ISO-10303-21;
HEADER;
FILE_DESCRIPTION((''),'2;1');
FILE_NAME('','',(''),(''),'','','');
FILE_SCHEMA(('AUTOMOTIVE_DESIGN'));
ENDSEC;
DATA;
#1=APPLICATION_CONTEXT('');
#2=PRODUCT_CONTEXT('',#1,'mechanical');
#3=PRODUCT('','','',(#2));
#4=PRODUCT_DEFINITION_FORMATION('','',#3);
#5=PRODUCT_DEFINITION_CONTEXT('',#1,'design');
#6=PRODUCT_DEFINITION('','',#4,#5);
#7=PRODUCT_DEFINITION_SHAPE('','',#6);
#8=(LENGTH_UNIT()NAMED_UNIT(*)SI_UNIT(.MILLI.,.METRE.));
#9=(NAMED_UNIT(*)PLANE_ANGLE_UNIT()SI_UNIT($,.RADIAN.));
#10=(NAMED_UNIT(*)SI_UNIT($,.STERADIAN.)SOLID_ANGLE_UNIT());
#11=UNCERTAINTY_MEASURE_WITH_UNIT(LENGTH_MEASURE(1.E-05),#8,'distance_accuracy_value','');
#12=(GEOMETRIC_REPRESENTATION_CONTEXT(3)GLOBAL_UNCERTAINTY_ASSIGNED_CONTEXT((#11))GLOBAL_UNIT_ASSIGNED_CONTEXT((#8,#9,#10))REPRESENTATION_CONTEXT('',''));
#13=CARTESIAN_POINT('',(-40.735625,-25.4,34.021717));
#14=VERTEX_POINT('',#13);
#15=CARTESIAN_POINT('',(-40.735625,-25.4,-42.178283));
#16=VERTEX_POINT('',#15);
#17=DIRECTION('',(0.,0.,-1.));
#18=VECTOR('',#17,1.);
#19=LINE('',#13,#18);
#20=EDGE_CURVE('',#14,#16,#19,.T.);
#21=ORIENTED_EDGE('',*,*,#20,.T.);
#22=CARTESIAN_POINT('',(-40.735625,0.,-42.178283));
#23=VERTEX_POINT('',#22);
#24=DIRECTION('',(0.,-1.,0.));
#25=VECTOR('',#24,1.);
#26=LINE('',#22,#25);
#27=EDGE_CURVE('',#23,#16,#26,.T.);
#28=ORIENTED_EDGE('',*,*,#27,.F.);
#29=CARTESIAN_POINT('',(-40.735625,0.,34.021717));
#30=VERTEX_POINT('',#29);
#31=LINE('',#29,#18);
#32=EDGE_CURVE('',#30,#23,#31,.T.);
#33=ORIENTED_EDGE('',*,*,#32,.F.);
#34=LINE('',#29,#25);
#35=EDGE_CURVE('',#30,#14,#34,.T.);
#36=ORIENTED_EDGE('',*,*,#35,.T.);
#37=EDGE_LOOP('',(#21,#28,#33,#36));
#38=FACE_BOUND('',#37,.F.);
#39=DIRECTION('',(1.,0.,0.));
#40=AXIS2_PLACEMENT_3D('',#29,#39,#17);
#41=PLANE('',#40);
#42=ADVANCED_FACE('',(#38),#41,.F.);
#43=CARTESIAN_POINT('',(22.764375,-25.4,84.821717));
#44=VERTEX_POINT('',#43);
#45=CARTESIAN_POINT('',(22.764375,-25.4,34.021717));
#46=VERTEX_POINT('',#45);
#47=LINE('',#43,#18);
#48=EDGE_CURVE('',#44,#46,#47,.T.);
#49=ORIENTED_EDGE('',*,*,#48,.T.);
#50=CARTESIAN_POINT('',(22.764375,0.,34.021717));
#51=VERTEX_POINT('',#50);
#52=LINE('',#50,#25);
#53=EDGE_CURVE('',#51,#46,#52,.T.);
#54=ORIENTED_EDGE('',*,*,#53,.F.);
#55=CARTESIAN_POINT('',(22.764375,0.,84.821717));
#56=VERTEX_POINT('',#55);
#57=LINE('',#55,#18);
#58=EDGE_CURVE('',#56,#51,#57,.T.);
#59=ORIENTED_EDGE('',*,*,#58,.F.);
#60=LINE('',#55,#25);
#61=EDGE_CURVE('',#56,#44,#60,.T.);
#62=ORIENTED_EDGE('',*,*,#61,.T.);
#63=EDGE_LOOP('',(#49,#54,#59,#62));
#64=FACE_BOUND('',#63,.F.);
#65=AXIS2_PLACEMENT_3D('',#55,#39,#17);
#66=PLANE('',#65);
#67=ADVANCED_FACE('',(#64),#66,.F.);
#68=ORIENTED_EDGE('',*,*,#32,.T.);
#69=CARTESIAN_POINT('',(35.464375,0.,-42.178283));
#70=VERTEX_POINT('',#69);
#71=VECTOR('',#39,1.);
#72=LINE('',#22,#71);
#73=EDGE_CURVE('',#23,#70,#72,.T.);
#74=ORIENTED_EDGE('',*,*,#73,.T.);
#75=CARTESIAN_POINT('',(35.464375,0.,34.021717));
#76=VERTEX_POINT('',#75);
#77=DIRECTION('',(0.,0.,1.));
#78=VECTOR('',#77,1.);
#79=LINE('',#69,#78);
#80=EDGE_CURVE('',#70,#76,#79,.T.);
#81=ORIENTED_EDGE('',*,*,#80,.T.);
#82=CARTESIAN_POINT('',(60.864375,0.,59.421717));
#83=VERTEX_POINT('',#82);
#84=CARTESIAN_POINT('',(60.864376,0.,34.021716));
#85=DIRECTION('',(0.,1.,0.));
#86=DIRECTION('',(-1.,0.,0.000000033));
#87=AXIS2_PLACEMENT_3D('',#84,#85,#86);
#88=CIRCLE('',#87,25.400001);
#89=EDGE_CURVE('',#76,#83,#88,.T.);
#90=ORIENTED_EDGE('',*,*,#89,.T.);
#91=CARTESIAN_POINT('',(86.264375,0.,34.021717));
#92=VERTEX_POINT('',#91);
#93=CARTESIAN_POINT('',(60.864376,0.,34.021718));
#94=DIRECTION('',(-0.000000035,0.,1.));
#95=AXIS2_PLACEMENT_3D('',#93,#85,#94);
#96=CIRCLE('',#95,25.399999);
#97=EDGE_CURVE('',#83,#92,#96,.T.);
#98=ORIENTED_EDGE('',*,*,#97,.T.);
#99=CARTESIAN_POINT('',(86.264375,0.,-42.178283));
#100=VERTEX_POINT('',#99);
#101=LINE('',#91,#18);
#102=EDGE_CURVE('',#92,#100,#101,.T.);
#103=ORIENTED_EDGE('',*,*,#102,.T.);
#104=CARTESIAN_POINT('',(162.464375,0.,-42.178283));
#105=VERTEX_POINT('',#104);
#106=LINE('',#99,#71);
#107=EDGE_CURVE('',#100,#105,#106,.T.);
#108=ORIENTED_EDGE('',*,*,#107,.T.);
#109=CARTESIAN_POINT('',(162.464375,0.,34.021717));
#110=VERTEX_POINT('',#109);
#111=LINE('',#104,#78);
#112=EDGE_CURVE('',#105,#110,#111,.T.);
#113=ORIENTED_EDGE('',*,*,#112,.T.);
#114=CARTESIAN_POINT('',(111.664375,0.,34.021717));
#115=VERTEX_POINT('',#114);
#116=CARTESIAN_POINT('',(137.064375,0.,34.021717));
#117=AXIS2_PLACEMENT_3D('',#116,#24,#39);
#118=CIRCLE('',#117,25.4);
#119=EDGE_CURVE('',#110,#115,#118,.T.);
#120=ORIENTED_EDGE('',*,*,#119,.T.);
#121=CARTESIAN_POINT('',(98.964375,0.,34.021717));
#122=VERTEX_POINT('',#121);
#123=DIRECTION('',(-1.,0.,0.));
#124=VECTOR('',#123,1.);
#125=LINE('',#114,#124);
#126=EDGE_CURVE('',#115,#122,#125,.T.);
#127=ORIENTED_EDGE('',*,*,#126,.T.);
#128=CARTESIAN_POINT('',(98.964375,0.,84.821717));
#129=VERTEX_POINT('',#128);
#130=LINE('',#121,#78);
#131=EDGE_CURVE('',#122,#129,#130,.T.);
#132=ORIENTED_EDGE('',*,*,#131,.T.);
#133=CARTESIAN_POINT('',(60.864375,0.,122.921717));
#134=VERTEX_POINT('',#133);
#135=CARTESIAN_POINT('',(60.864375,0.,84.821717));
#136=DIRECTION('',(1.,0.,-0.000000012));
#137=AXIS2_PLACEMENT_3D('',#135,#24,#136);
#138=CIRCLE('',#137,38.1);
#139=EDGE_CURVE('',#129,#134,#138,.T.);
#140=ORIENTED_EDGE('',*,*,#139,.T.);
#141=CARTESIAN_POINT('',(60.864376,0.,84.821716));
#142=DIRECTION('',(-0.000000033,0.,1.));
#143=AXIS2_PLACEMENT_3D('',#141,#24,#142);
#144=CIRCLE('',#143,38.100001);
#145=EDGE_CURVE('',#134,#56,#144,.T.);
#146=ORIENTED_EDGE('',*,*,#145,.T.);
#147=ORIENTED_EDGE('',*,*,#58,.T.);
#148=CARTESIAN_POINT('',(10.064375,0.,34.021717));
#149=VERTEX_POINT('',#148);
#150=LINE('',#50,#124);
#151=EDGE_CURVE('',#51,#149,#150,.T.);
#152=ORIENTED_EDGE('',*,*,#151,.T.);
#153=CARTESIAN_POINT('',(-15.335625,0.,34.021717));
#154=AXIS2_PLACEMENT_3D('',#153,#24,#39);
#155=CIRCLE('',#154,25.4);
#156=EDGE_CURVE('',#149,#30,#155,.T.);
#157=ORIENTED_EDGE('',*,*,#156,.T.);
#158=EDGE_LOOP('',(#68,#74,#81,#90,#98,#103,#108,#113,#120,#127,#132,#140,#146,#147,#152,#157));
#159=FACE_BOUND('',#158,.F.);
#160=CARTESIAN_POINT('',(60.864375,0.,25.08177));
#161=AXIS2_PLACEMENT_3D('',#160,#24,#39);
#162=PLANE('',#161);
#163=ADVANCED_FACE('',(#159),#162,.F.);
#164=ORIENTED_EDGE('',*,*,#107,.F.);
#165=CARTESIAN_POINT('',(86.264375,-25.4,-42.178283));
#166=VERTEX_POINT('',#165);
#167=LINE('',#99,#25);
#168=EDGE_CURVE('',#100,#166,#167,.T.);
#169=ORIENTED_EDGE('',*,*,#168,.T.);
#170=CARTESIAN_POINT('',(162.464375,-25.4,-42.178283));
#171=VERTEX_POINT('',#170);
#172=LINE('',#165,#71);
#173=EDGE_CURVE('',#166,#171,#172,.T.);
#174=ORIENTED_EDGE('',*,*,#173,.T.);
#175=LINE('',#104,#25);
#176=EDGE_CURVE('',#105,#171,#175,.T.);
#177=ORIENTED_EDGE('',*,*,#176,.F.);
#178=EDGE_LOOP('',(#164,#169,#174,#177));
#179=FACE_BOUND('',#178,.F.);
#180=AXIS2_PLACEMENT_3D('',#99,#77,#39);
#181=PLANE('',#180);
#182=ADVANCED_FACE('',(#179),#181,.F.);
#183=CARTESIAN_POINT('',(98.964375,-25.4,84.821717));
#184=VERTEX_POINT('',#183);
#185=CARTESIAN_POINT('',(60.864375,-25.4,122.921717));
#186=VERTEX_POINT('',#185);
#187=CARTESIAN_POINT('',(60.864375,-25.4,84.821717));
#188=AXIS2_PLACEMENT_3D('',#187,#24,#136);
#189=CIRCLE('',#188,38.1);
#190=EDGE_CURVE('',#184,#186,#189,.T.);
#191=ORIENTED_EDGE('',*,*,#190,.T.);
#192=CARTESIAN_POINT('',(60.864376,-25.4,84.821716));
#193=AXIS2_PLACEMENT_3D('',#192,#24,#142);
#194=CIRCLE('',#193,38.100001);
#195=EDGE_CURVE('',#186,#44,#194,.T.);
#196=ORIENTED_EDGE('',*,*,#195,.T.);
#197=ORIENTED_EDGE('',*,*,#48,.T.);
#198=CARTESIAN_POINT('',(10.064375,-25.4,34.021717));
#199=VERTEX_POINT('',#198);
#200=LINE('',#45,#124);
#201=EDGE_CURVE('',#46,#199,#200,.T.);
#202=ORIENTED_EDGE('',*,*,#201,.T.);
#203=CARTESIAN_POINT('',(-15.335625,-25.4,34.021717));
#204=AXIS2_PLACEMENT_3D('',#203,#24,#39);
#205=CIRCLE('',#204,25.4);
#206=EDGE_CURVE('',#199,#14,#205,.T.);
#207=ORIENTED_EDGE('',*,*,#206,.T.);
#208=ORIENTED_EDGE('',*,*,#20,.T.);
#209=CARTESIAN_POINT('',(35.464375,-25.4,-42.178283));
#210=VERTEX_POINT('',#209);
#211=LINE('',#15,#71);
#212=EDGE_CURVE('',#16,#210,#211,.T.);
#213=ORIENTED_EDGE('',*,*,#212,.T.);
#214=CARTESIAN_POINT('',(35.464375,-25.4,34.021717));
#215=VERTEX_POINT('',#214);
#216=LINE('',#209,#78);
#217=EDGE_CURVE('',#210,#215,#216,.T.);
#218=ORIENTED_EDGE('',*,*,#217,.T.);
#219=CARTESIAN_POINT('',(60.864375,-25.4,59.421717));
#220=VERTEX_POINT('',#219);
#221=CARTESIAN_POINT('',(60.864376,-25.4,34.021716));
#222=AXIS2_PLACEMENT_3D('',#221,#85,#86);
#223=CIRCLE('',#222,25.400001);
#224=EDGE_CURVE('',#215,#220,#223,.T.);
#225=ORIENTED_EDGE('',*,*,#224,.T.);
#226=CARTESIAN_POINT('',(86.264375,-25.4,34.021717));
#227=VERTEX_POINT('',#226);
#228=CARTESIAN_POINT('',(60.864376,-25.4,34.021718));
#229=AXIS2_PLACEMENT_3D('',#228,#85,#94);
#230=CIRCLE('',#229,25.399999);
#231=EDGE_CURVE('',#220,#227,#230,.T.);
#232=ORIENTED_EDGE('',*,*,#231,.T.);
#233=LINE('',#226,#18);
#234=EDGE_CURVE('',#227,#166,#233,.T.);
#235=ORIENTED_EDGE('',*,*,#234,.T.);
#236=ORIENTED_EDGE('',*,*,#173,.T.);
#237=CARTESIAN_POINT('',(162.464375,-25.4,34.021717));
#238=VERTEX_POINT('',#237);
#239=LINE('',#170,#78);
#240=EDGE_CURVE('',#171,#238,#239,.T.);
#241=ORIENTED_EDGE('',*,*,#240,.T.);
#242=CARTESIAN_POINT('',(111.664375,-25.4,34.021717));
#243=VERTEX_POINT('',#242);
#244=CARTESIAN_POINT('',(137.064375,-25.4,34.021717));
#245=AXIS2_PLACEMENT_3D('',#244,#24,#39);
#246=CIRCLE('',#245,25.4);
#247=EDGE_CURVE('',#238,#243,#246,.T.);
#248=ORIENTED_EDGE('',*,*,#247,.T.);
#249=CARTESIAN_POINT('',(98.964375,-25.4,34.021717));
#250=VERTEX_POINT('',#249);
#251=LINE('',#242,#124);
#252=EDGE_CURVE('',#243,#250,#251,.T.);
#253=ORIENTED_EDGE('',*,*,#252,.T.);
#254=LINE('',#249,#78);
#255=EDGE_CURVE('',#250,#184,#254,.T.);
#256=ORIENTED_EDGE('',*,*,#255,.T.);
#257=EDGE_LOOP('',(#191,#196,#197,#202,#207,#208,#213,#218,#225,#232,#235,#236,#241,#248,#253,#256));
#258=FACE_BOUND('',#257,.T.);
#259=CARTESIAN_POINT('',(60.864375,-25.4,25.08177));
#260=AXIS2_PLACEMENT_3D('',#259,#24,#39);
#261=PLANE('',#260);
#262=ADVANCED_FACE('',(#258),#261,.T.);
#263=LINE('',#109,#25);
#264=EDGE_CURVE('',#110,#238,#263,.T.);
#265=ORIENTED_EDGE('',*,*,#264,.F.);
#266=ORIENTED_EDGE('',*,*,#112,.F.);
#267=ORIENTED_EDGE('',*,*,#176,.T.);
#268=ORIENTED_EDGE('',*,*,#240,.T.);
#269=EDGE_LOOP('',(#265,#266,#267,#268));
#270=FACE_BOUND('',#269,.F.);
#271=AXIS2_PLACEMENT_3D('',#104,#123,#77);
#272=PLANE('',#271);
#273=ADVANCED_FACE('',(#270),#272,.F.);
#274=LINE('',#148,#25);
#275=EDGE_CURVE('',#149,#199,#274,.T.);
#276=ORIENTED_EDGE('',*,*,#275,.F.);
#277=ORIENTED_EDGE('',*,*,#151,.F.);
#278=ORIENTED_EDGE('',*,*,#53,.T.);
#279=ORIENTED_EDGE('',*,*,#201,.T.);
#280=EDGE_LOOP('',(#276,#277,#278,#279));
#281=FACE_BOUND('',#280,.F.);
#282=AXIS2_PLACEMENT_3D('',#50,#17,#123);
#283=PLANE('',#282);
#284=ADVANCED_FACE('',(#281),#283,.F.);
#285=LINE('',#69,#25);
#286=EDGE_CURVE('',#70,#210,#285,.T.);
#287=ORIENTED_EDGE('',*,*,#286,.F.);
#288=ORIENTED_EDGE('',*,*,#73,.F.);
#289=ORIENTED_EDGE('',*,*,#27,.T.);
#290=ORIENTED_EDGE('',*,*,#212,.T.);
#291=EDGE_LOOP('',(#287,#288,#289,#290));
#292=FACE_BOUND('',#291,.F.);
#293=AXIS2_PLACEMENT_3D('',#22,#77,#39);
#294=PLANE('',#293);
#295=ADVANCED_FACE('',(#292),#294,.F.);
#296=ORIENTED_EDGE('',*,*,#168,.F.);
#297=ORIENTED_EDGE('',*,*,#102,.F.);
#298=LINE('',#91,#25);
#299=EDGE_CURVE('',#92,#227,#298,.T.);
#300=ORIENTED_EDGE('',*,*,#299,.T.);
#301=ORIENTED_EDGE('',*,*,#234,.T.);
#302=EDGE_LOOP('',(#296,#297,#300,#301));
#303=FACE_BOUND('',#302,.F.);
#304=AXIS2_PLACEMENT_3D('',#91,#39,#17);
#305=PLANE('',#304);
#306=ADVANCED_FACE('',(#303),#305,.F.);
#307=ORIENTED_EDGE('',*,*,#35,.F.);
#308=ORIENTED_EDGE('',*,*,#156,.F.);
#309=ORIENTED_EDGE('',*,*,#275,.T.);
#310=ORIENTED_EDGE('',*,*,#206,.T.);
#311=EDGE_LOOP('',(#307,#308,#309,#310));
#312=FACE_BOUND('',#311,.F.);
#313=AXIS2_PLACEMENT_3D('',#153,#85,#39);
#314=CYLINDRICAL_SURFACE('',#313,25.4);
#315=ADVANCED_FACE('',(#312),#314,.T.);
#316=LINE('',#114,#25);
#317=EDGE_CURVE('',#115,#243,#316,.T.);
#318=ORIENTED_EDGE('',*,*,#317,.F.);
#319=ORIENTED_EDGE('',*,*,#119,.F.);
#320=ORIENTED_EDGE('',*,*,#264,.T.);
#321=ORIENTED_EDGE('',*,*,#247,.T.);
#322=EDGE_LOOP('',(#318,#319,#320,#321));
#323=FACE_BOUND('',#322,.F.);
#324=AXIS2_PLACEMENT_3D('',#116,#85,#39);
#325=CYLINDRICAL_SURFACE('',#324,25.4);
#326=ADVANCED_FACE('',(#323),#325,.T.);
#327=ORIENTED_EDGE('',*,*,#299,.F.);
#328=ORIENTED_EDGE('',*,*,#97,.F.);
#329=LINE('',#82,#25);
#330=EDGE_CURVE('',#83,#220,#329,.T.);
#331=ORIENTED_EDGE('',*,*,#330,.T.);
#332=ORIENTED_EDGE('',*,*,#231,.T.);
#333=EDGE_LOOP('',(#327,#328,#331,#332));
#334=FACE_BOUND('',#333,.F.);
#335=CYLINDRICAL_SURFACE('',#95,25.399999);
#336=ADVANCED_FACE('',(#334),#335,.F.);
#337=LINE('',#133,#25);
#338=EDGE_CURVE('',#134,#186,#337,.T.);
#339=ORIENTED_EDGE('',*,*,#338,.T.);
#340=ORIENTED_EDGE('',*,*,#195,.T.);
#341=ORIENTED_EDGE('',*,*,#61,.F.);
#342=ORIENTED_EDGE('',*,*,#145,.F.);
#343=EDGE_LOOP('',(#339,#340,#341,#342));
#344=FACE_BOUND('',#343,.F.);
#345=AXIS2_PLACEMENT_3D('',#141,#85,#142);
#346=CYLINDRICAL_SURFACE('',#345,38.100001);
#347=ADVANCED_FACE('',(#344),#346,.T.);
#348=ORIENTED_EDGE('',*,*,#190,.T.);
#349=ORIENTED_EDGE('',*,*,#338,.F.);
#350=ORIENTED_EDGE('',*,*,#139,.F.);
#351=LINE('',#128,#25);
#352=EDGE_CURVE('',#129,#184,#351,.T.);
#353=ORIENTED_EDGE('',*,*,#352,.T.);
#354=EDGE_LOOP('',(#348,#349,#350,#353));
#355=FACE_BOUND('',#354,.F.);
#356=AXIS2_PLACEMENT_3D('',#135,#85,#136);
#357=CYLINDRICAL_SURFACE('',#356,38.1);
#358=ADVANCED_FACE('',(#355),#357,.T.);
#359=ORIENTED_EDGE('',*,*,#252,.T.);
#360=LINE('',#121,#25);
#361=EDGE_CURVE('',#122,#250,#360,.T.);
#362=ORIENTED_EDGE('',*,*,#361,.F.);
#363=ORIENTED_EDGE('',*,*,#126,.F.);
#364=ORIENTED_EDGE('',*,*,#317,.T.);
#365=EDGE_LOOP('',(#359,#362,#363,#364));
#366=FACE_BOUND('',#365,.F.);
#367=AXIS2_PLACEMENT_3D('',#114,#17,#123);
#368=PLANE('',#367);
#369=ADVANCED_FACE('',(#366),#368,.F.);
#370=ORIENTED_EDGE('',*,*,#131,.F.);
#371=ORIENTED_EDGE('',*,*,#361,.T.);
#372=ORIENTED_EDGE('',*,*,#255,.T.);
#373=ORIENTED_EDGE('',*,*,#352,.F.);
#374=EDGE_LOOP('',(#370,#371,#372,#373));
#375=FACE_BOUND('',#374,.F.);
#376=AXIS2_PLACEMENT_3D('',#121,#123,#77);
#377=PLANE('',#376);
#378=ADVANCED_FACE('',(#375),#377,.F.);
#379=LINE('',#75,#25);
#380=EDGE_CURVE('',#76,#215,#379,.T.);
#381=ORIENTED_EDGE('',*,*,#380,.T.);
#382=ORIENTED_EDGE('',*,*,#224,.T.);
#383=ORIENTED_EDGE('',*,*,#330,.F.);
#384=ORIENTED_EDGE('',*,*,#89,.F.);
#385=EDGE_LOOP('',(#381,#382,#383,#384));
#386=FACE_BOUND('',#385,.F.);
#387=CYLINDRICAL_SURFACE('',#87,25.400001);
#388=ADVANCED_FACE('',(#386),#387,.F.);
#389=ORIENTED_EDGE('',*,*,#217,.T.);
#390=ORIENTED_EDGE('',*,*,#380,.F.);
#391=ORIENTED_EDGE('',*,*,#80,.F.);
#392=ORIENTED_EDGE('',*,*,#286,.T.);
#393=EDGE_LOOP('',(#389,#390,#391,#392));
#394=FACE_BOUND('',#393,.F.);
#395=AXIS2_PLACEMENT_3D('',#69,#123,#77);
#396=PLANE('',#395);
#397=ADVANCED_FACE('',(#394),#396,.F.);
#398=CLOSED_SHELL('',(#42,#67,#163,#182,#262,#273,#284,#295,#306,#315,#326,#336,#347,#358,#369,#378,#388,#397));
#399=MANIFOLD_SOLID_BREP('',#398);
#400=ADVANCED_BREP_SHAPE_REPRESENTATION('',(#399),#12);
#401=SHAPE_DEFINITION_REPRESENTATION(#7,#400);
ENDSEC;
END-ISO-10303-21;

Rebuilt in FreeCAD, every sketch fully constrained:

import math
import FreeCAD as App
import Part
import Sketcher

V = App.Vector
Q = App.Units.Quantity

doc = App.newDocument("Part")
body = doc.addObject("PartDesign::Body", "Body")

# Sketch on XZ plane
sketch1 = doc.addObject("Sketcher::SketchObject", "Sketch")
body.addObject(sketch1)
sketch1.AttachmentSupport = (doc.XZ_Plane, [""])
sketch1.MapMode = "FlatFace"
sketch1.addGeometry(Part.LineSegment(V(-40.735625, 34.021717, 0), V(-40.735625, -42.178283, 0)), False)
sketch1.addGeometry(Part.LineSegment(V(-40.735625, -42.178283, 0), V(35.464375, -42.178283, 0)), False)
sketch1.addGeometry(Part.LineSegment(V(35.464375, -42.178283, 0), V(35.464375, 34.021717, 0)), False)
sketch1.addGeometry(Part.ArcOfCircle(Part.Circle(V(60.864376, 34.021716, 0), V(0, 0, 1), 25.400001), math.radians(90.000002), math.radians(179.999998)), False)
sketch1.addGeometry(Part.ArcOfCircle(Part.Circle(V(60.864376, 34.021718, 0), V(0, 0, 1), 25.399999), math.radians(-0.000002), math.radians(90.000002)), False)
sketch1.addGeometry(Part.LineSegment(V(86.264375, 34.021717, 0), V(86.264375, -42.178283, 0)), False)
sketch1.addGeometry(Part.LineSegment(V(86.264375, -42.178283, 0), V(162.464375, -42.178283, 0)), False)
sketch1.addGeometry(Part.LineSegment(V(162.464375, -42.178283, 0), V(162.464375, 34.021717, 0)), False)
sketch1.addGeometry(Part.ArcOfCircle(Part.Circle(V(137.064375, 34.021717, 0), V(0, 0, 1), 25.4), math.radians(0), math.radians(180)), False)
sketch1.addGeometry(Part.LineSegment(V(111.664375, 34.021717, 0), V(98.964375, 34.021717, 0)), False)
sketch1.addGeometry(Part.LineSegment(V(98.964375, 34.021717, 0), V(98.964375, 84.821717, 0)), False)
sketch1.addGeometry(Part.ArcOfCircle(Part.Circle(V(60.864375, 84.821717, 0), V(0, 0, 1), 38.1), math.radians(-0.000001), math.radians(90.000001)), False)
sketch1.addGeometry(Part.ArcOfCircle(Part.Circle(V(60.864376, 84.821716, 0), V(0, 0, 1), 38.100001), math.radians(90.000002), math.radians(179.999998)), False)
sketch1.addGeometry(Part.LineSegment(V(22.764375, 84.821717, 0), V(22.764375, 34.021717, 0)), False)
sketch1.addGeometry(Part.LineSegment(V(22.764375, 34.021717, 0), V(10.064375, 34.021717, 0)), False)
sketch1.addGeometry(Part.ArcOfCircle(Part.Circle(V(-15.335625, 34.021717, 0), V(0, 0, 1), 25.4), math.radians(0), math.radians(180)), False)
sketch1.addConstraint(Sketcher.Constraint("Coincident", 0, 2, 1, 1))
sketch1.addConstraint(Sketcher.Constraint("Coincident", 1, 2, 2, 1))
sketch1.addConstraint(Sketcher.Constraint("Tangent", 2, 2, 3, 2))
sketch1.addConstraint(Sketcher.Constraint("Tangent", 3, 1, 4, 2))
sketch1.addConstraint(Sketcher.Constraint("Tangent", 4, 1, 5, 1))
sketch1.addConstraint(Sketcher.Constraint("Coincident", 5, 2, 6, 1))
sketch1.addConstraint(Sketcher.Constraint("Coincident", 6, 2, 7, 1))
sketch1.addConstraint(Sketcher.Constraint("Tangent", 7, 2, 8, 1))
sketch1.addConstraint(Sketcher.Constraint("Coincident", 8, 2, 9, 1))
sketch1.addConstraint(Sketcher.Constraint("Coincident", 9, 2, 10, 1))
sketch1.addConstraint(Sketcher.Constraint("Tangent", 10, 2, 11, 1))
sketch1.addConstraint(Sketcher.Constraint("Tangent", 11, 2, 12, 1))
sketch1.addConstraint(Sketcher.Constraint("Tangent", 12, 2, 13, 1))
sketch1.addConstraint(Sketcher.Constraint("Coincident", 13, 2, 14, 1))
sketch1.addConstraint(Sketcher.Constraint("Coincident", 14, 2, 15, 1))
sketch1.addConstraint(Sketcher.Constraint("Tangent", 15, 2, 0, 1))
sketch1.addConstraint(Sketcher.Constraint("Vertical", 0))
sketch1.addConstraint(Sketcher.Constraint("Horizontal", 1))
sketch1.addConstraint(Sketcher.Constraint("Vertical", 2))
sketch1.addConstraint(Sketcher.Constraint("Vertical", 5))
sketch1.addConstraint(Sketcher.Constraint("Horizontal", 6))
sketch1.addConstraint(Sketcher.Constraint("Vertical", 7))
sketch1.addConstraint(Sketcher.Constraint("Horizontal", 9))
sketch1.addConstraint(Sketcher.Constraint("Vertical", 10))
sketch1.addConstraint(Sketcher.Constraint("Vertical", 13))
sketch1.addConstraint(Sketcher.Constraint("Horizontal", 14))
sketch1.addConstraint(Sketcher.Constraint("Equal", 3, 4))
sketch1.addConstraint(Sketcher.Constraint("Equal", 4, 8))
sketch1.addConstraint(Sketcher.Constraint("Equal", 11, 12))
sketch1.addConstraint(Sketcher.Constraint("Equal", 8, 15))
sketch1.addConstraint(Sketcher.Constraint("Horizontal", 4, 3, 8, 3))
sketch1.addConstraint(Sketcher.Constraint("Horizontal", 8, 3, 15, 3))
sketch1.addConstraint(Sketcher.Constraint("Horizontal", 1, 2, 5, 2))
sketch1.addConstraint(Sketcher.Constraint("Horizontal", 7, 2, 8, 2))
sketch1.addConstraint(Sketcher.Constraint("Horizontal", 9, 2, 13, 2))
sketch1.addConstraint(Sketcher.Constraint("Vertical", 4, 3, 11, 3))
sketch1.addConstraint(Sketcher.Constraint("Vertical", 12, 3, 3, 1))
sketch1.addConstraint(Sketcher.Constraint("Vertical", 3, 1, 11, 2))
sketch1.addConstraint(Sketcher.Constraint("Equal", 1, 6))
sketch1.addConstraint(Sketcher.Constraint("Equal", 6, 0))
sketch1.addConstraint(Sketcher.Constraint("Radius", 3, Q("1 in")))
sketch1.addConstraint(Sketcher.Constraint("Radius", 11, Q("1.5 in")))
sketch1.addConstraint(Sketcher.Constraint("DistanceX", 1, 1, 1, 2, Q("3 in")))
sketch1.addConstraint(Sketcher.Constraint("DistanceY", 10, 1, 10, 2, Q("2 in")))
sketch1.addConstraint(Sketcher.Constraint("DistanceX", -1, 1, 3, 3, Q("60.864376 mm")))
sketch1.addConstraint(Sketcher.Constraint("DistanceY", -1, 1, 3, 3, Q("34.021716 mm")))
pad1 = doc.addObject("PartDesign::Pad", "Pad")
body.addObject(pad1)
pad1.Profile = sketch1
pad1.Length = Q("1 in")

doc.recompute()
